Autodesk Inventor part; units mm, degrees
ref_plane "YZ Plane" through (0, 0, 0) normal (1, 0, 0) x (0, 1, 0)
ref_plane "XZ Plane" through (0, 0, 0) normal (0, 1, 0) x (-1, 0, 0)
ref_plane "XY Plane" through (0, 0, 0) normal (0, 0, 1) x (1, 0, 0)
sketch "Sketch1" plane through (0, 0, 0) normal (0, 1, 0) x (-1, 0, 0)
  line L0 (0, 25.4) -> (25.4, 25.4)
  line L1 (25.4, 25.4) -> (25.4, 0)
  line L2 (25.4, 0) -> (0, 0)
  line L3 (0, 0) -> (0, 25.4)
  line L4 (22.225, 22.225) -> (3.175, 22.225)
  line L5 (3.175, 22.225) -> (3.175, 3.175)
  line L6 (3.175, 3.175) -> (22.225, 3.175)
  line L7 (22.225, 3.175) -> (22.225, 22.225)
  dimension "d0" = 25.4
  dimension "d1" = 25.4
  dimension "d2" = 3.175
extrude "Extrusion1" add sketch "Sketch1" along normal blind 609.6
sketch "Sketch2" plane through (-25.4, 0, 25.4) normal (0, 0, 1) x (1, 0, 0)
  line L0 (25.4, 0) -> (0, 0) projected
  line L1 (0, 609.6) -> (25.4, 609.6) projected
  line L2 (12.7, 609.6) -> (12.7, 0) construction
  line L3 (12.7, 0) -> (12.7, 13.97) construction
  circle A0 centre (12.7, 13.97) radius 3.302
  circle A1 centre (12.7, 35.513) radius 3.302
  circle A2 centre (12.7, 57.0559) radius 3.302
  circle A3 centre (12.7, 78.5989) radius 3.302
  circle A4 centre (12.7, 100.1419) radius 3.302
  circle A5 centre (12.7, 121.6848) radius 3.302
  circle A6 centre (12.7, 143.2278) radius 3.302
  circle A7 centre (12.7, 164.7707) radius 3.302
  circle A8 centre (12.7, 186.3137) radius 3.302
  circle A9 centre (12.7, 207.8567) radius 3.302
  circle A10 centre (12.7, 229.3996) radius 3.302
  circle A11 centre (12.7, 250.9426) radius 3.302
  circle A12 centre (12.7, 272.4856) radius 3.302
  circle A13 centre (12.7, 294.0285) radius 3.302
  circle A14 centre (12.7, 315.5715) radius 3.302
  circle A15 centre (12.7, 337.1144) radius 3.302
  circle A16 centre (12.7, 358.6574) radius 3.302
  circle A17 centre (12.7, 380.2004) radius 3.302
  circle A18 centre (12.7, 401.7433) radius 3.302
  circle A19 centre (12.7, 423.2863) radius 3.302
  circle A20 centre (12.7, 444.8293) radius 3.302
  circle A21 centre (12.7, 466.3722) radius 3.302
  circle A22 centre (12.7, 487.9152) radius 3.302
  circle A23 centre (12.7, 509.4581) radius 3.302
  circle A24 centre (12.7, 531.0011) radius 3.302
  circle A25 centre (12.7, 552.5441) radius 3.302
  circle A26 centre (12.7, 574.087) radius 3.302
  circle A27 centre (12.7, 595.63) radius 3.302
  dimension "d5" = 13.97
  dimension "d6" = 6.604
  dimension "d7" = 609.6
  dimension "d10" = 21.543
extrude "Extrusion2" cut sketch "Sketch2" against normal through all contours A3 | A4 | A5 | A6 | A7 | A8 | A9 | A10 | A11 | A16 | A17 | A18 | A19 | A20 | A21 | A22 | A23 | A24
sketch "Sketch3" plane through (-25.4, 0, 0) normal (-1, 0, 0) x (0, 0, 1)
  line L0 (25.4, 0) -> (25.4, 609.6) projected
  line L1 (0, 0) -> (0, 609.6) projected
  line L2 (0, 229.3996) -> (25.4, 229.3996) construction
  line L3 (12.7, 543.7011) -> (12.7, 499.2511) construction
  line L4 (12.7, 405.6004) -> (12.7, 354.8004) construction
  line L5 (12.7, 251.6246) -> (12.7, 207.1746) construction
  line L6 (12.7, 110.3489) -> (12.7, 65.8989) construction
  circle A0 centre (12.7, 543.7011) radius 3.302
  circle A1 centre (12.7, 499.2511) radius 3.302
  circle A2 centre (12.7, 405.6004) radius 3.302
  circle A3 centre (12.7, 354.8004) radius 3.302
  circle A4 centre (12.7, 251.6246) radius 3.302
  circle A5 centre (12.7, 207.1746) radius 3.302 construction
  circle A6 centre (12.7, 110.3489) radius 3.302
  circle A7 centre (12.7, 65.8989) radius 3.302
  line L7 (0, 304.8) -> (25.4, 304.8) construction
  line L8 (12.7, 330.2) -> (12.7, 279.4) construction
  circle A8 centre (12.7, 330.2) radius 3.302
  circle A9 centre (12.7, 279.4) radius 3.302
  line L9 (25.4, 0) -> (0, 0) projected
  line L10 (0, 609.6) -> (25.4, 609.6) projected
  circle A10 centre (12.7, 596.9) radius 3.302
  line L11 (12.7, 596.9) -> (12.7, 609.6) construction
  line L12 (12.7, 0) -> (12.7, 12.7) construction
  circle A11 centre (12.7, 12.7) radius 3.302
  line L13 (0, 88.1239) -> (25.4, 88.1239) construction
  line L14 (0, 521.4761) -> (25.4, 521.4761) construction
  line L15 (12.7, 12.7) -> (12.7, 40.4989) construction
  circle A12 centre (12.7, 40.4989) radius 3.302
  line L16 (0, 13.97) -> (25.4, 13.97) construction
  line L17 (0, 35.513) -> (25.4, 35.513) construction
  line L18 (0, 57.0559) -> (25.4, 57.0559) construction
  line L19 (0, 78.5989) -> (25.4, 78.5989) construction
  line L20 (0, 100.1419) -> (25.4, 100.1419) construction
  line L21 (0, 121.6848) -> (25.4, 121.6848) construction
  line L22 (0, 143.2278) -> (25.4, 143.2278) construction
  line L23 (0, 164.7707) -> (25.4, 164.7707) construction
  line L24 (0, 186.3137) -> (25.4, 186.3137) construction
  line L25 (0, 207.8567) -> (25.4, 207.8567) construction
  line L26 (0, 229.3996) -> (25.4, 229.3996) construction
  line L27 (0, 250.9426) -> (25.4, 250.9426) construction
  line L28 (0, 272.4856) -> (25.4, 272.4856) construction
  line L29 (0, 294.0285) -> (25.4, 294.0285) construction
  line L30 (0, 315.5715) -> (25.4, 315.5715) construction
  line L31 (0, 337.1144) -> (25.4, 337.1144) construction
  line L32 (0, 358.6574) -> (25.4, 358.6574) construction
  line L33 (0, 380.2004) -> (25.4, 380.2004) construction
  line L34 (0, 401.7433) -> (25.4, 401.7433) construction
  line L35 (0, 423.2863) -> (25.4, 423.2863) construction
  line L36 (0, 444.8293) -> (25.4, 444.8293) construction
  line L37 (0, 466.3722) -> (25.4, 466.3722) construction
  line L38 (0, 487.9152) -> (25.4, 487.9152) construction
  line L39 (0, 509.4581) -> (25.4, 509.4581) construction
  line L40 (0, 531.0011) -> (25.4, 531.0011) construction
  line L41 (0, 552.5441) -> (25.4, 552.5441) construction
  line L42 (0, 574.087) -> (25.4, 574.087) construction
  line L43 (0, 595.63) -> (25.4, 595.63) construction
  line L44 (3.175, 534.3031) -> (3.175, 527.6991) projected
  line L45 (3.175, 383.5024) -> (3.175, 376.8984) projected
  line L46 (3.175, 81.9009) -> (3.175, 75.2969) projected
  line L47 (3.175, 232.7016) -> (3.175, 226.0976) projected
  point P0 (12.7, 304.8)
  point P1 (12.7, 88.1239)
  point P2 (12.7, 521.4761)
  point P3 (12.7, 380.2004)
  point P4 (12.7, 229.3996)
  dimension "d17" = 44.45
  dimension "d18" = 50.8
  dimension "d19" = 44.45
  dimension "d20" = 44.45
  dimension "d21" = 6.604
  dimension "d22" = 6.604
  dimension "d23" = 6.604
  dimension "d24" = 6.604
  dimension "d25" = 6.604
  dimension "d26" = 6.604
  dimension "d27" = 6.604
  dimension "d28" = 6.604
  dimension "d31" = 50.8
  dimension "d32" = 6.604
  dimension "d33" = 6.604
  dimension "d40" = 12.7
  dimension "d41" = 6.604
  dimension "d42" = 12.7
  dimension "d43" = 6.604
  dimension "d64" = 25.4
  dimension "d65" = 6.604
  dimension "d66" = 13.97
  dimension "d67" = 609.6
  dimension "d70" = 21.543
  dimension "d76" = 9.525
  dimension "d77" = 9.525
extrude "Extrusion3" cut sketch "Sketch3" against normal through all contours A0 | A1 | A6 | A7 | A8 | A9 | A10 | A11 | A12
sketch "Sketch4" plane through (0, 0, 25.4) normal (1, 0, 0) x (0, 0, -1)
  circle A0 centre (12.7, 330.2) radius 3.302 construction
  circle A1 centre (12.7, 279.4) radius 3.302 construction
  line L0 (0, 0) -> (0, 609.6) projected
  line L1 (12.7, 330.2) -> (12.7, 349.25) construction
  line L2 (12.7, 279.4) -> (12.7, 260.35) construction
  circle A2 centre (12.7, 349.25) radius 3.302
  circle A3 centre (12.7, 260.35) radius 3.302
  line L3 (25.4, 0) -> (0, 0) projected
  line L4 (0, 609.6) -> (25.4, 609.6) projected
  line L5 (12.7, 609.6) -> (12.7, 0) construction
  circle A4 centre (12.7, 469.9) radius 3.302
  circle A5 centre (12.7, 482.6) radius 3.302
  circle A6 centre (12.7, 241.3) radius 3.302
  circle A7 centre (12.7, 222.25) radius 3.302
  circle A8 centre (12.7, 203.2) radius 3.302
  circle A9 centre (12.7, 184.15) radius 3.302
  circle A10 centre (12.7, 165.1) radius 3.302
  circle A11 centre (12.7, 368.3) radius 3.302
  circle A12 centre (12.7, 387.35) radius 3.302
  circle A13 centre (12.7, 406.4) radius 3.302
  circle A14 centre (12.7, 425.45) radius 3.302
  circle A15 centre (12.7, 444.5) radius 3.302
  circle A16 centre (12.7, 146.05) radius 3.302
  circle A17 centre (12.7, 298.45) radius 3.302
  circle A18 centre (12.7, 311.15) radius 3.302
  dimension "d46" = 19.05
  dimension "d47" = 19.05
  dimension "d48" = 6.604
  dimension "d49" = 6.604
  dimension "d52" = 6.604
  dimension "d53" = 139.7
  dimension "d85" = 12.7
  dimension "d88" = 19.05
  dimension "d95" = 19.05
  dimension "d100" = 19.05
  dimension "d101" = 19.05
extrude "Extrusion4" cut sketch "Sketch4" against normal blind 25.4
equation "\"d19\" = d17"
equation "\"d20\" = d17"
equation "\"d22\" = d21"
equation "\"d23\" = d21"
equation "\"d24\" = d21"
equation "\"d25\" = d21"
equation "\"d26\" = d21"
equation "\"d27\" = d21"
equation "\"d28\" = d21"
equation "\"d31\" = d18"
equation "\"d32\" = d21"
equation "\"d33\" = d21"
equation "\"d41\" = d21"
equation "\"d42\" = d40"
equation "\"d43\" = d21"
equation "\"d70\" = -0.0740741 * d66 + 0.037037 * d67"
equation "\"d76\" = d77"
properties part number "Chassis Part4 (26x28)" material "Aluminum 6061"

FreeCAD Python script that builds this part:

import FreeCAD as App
import Part
import Sketcher
Q = App.Units.Quantity


def add_polygon(sketch, points):
    """Adds a closed chain of lines whose ends are joined by coincident constraints."""
    first, n = sketch.GeometryCount, len(points)
    for a, b in zip(points, points[1:] + points[:1]):
        sketch.addGeometry(Part.LineSegment(App.Vector(*a, 0), App.Vector(*b, 0)), False)
    for i in range(n):
        sketch.addConstraint(Sketcher.Constraint("Coincident", first + i, 2, first + (i + 1) % n, 1))

doc = App.newDocument("Part")
body = doc.addObject("PartDesign::Body", "Body")

# Sketch on XZ plane
sketch1 = body.newObject("Sketcher::SketchObject", "Sketch")
sketch1.AttachmentSupport = (doc.getObject("XZ_Plane"), [""])
sketch1.MapMode = "FlatFace"
add_polygon(sketch1, [(-25, 25), (0, 25), (0, 0), (-25, 0)])  # lines 0-3
add_polygon(sketch1, [(-3, 22), (-22, 22), (-22, 3), (-3, 3)])  # lines 4-7
sketch1.addConstraint([
    Sketcher.Constraint("Horizontal", 0),
    Sketcher.Constraint("Vertical", 1),
    Sketcher.Constraint("Horizontal", 2),
    Sketcher.Constraint("Vertical", 3),
    Sketcher.Constraint("Horizontal", 4),
    Sketcher.Constraint("Vertical", 5),
    Sketcher.Constraint("Horizontal", 6),
    Sketcher.Constraint("Vertical", 7),
    Sketcher.Constraint("Coincident", 1, 2, -1, 1),
    Sketcher.Constraint("Equal", 2, 1),
    Sketcher.Constraint("Equal", 6, 5),
    Sketcher.Constraint("DistanceX", 0, 1, 0, 2, Q("1 in")),
    Sketcher.Constraint("DistanceY", -1, 1, 5, 2, Q("0.125 in")),
    Sketcher.Constraint("DistanceX", 6, 2, -1, 1, Q("0.125 in")),
    Sketcher.Constraint("DistanceX", 3, 2, 4, 2, Q("0.125 in")),
])
pad1 = body.newObject("PartDesign::Pad", "Pad")
pad1.Profile = sketch1
pad1.Length = Q("24 in")
pad1.Reversed = True

# Sketch on XY plane
sketch2 = body.newObject("Sketcher::SketchObject", "Sketch001")
sketch2.AttachmentSupport = (doc.getObject("XY_Plane"), [""])
sketch2.MapMode = "FlatFace"
sketch2.AttachmentOffset = App.Placement(App.Vector(0, 0, 1 * 25.4), App.Rotation())
sketch2.addGeometry([
    Part.Circle(App.Vector(-12.7, 78.6, 0), App.Vector(0, 0, 1), 3.3),  # 0
    Part.Circle(App.Vector(-12.7, 100.1, 0), App.Vector(0, 0, 1), 3.3),  # 1
    Part.Circle(App.Vector(-12.7, 121.7, 0), App.Vector(0, 0, 1), 3.3),  # 2
    Part.Circle(App.Vector(-12.7, 143.2, 0), App.Vector(0, 0, 1), 3.3),  # 3
    Part.Circle(App.Vector(-12.7, 164.8, 0), App.Vector(0, 0, 1), 3.3),  # 4
    Part.Circle(App.Vector(-12.7, 186.3, 0), App.Vector(0, 0, 1), 3.3),  # 5
    Part.Circle(App.Vector(-12.7, 207.9, 0), App.Vector(0, 0, 1), 3.3),  # 6
    Part.Circle(App.Vector(-12.7, 229.4, 0), App.Vector(0, 0, 1), 3.3),  # 7
    Part.Circle(App.Vector(-12.7, 250.9, 0), App.Vector(0, 0, 1), 3.3),  # 8
    Part.Circle(App.Vector(-12.7, 358.7, 0), App.Vector(0, 0, 1), 3.3),  # 9
    Part.Circle(App.Vector(-12.7, 380.2, 0), App.Vector(0, 0, 1), 3.3),  # 10
    Part.Circle(App.Vector(-12.7, 401.7, 0), App.Vector(0, 0, 1), 3.3),  # 11
    Part.Circle(App.Vector(-12.7, 423.3, 0), App.Vector(0, 0, 1), 3.3),  # 12
    Part.Circle(App.Vector(-12.7, 444.8, 0), App.Vector(0, 0, 1), 3.3),  # 13
    Part.Circle(App.Vector(-12.7, 466.4, 0), App.Vector(0, 0, 1), 3.3),  # 14
    Part.Circle(App.Vector(-12.7, 487.9, 0), App.Vector(0, 0, 1), 3.3),  # 15
    Part.Circle(App.Vector(-12.7, 509.5, 0), App.Vector(0, 0, 1), 3.3),  # 16
    Part.Circle(App.Vector(-12.7, 531, 0), App.Vector(0, 0, 1), 3.3),  # 17
], False)
sketch2.addConstraint([
    Sketcher.Constraint("Equal", 0, 1),
    Sketcher.Constraint("Equal", 1, 2),
    Sketcher.Constraint("Equal", 2, 3),
    Sketcher.Constraint("Equal", 3, 4),
    Sketcher.Constraint("Equal", 4, 5),
    Sketcher.Constraint("Equal", 5, 6),
    Sketcher.Constraint("Equal", 6, 7),
    Sketcher.Constraint("Equal", 7, 8),
    Sketcher.Constraint("Equal", 8, 9),
    Sketcher.Constraint("Equal", 9, 10),
    Sketcher.Constraint("Equal", 10, 11),
    Sketcher.Constraint("Equal", 11, 12),
    Sketcher.Constraint("Equal", 12, 13),
    Sketcher.Constraint("Equal", 13, 14),
    Sketcher.Constraint("Equal", 14, 15),
    Sketcher.Constraint("Equal", 15, 16),
    Sketcher.Constraint("Equal", 16, 17),
    Sketcher.Constraint("Vertical", 0, 3, 1, 3),
    Sketcher.Constraint("Vertical", 1, 3, 2, 3),
    Sketcher.Constraint("Vertical", 2, 3, 3, 3),
    Sketcher.Constraint("Vertical", 3, 3, 4, 3),
    Sketcher.Constraint("Vertical", 4, 3, 5, 3),
    Sketcher.Constraint("Vertical", 5, 3, 6, 3),
    Sketcher.Constraint("Vertical", 6, 3, 7, 3),
    Sketcher.Constraint("Vertical", 7, 3, 8, 3),
    Sketcher.Constraint("Vertical", 8, 3, 9, 3),
    Sketcher.Constraint("Vertical", 9, 3, 10, 3),
    Sketcher.Constraint("Vertical", 10, 3, 11, 3),
    Sketcher.Constraint("Vertical", 11, 3, 12, 3),
    Sketcher.Constraint("Vertical", 12, 3, 13, 3),
    Sketcher.Constraint("Vertical", 13, 3, 14, 3),
    Sketcher.Constraint("Vertical", 14, 3, 15, 3),
    Sketcher.Constraint("Vertical", 15, 3, 16, 3),
    Sketcher.Constraint("Vertical", 16, 3, 17, 3),
    Sketcher.Constraint("Diameter", 0, Q("0.26 in")),
    Sketcher.Constraint("DistanceX", 0, 3, -1, 1, Q("0.5 in")),
    Sketcher.Constraint("DistanceY", 0, 3, 1, 3, 21.543),
    Sketcher.Constraint("DistanceY", 1, 3, 2, 3, 21.543),
    Sketcher.Constraint("DistanceY", 2, 3, 3, 3, 21.543),
    Sketcher.Constraint("DistanceY", 3, 3, 4, 3, 21.543),
    Sketcher.Constraint("DistanceY", 4, 3, 5, 3, 21.543),
    Sketcher.Constraint("DistanceY", 5, 3, 6, 3, 21.543),
    Sketcher.Constraint("DistanceY", 6, 3, 7, 3, 21.543),
    Sketcher.Constraint("DistanceY", 7, 3, 8, 3, 21.543),
    Sketcher.Constraint("DistanceY", 9, 3, 10, 3, 21.543),
    Sketcher.Constraint("DistanceY", 10, 3, 11, 3, 21.543),
    Sketcher.Constraint("DistanceY", 11, 3, 12, 3, 21.543),
    Sketcher.Constraint("DistanceY", 12, 3, 13, 3, 21.543),
    Sketcher.Constraint("DistanceY", 13, 3, 14, 3, 21.543),
    Sketcher.Constraint("DistanceY", 14, 3, 15, 3, 21.543),
    Sketcher.Constraint("DistanceY", 15, 3, 16, 3, 21.543),
    Sketcher.Constraint("DistanceY", 16, 3, 17, 3, 21.543),
    Sketcher.Constraint("DistanceY", -1, 1, 1, 3, Q("3.9426 in")),
    Sketcher.Constraint("DistanceY", -1, 1, 14, 3, Q("18.3611 in")),
])
pocket1 = body.newObject("PartDesign::Pocket", "Pocket")
pocket1.Profile = sketch2
pocket1.Type = "ThroughAll"

# Sketch on YZ plane
sketch3 = body.newObject("Sketcher::SketchObject", "Sketch002")
sketch3.AttachmentSupport = (doc.getObject("YZ_Plane"), [""])
sketch3.MapMode = "FlatFace"
sketch3.AttachmentOffset = App.Placement(App.Vector(0, 0, -1 * 25.4), App.Rotation())
sketch3.addGeometry([
    Part.Circle(App.Vector(543.7, 12.7, 0), App.Vector(0, 0, 1), 3.3),  # 0
    Part.Circle(App.Vector(499.3, 12.7, 0), App.Vector(0, 0, 1), 3.3),  # 1
    Part.Circle(App.Vector(110.3, 12.7, 0), App.Vector(0, 0, 1), 3.3),  # 2
    Part.Circle(App.Vector(65.9, 12.7, 0), App.Vector(0, 0, 1), 3.3),  # 3
    Part.Circle(App.Vector(330.2, 12.7, 0), App.Vector(0, 0, 1), 3.3),  # 4
    Part.Circle(App.Vector(279.4, 12.7, 0), App.Vector(0, 0, 1), 3.3),  # 5
    Part.Circle(App.Vector(596.9, 12.7, 0), App.Vector(0, 0, 1), 3.3),  # 6
    Part.Circle(App.Vector(12.7, 12.7, 0), App.Vector(0, 0, 1), 3.3),  # 7
    Part.Circle(App.Vector(40.5, 12.7, 0), App.Vector(0, 0, 1), 3.3),  # 8
], False)
sketch3.addConstraint([
    Sketcher.Constraint("Equal", 0, 1),
    Sketcher.Constraint("Equal", 1, 2),
    Sketcher.Constraint("Equal", 2, 3),
    Sketcher.Constraint("Equal", 3, 4),
    Sketcher.Constraint("Equal", 4, 5),
    Sketcher.Constraint("Equal", 5, 6),
    Sketcher.Constraint("Equal", 6, 7),
    Sketcher.Constraint("Equal", 7, 8),
    Sketcher.Constraint("Horizontal", 0, 3, 1, 3),
    Sketcher.Constraint("Horizontal", 1, 3, 2, 3),
    Sketcher.Constraint("Horizontal", 2, 3, 3, 3),
    Sketcher.Constraint("Horizontal", 3, 3, 4, 3),
    Sketcher.Constraint("Horizontal", 4, 3, 5, 3),
    Sketcher.Constraint("Horizontal", 5, 3, 6, 3),
    Sketcher.Constraint("Horizontal", 6, 3, 7, 3),
    Sketcher.Constraint("Horizontal", 7, 3, 8, 3),
    Sketcher.Constraint("Diameter", 0, Q("0.26 in")),
    Sketcher.Constraint("DistanceX", 5, 3, 4, 3, Q("2 in")),
    Sketcher.Constraint("DistanceX", 8, 3, 3, 3, Q("1 in")),
    Sketcher.Constraint("DistanceY", -1, 1, 0, 3, Q("0.5 in")),
    Sketcher.Constraint("DistanceX", -1, 1, 7, 3, Q("0.5 in")),
    Sketcher.Constraint("DistanceX", 1, 3, 0, 3, Q("1.75 in")),
    Sketcher.Constraint("DistanceX", 3, 3, 2, 3, Q("1.75 in")),
    Sketcher.Constraint("DistanceX", -1, 1, 4, 3, Q("13 in")),
    Sketcher.Constraint("DistanceX", -1, 1, 6, 3, Q("23.5 in")),
    Sketcher.Constraint("DistanceX", 2, 3, 1, 3, Q("15.3111 in")),
    Sketcher.Constraint("DistanceX", -1, 1, 0, 3, 543.701),
])
pocket2 = body.newObject("PartDesign::Pocket", "Pocket001")
pocket2.Profile = sketch3
pocket2.Type = "ThroughAll"
pocket2.Reversed = True

# Sketch on YZ plane
sketch4 = body.newObject("Sketcher::SketchObject", "Sketch003")
sketch4.AttachmentSupport = (doc.getObject("YZ_Plane"), [""])
sketch4.MapMode = "FlatFace"
sketch4.addGeometry([
    Part.Circle(App.Vector(349.2, 12.7, 0), App.Vector(0, 0, 1), 3.3),  # 0
    Part.Circle(App.Vector(260.4, 12.7, 0), App.Vector(0, 0, 1), 3.3),  # 1
    Part.Circle(App.Vector(469.9, 12.7, 0), App.Vector(0, 0, 1), 3.3),  # 2
    Part.Circle(App.Vector(482.6, 12.7, 0), App.Vector(0, 0, 1), 3.3),  # 3
    Part.Circle(App.Vector(241.3, 12.7, 0), App.Vector(0, 0, 1), 3.3),  # 4
    Part.Circle(App.Vector(222.2, 12.7, 0), App.Vector(0, 0, 1), 3.3),  # 5
    Part.Circle(App.Vector(203.2, 12.7, 0), App.Vector(0, 0, 1), 3.3),  # 6
    Part.Circle(App.Vector(184.2, 12.7, 0), App.Vector(0, 0, 1), 3.3),  # 7
    Part.Circle(App.Vector(165.1, 12.7, 0), App.Vector(0, 0, 1), 3.3),  # 8
    Part.Circle(App.Vector(368.3, 12.7, 0), App.Vector(0, 0, 1), 3.3),  # 9
    Part.Circle(App.Vector(387.4, 12.7, 0), App.Vector(0, 0, 1), 3.3),  # 10
    Part.Circle(App.Vector(406.4, 12.7, 0), App.Vector(0, 0, 1), 3.3),  # 11
    Part.Circle(App.Vector(425.4, 12.7, 0), App.Vector(0, 0, 1), 3.3),  # 12
    Part.Circle(App.Vector(444.5, 12.7, 0), App.Vector(0, 0, 1), 3.3),  # 13
    Part.Circle(App.Vector(146.1, 12.7, 0), App.Vector(0, 0, 1), 3.3),  # 14
    Part.Circle(App.Vector(298.4, 12.7, 0), App.Vector(0, 0, 1), 3.3),  # 15
    Part.Circle(App.Vector(311.1, 12.7, 0), App.Vector(0, 0, 1), 3.3),  # 16
], False)
sketch4.addConstraint([
    Sketcher.Constraint("Equal", 0, 1),
    Sketcher.Constraint("Equal", 1, 2),
    Sketcher.Constraint("Equal", 2, 3),
    Sketcher.Constraint("Equal", 3, 4),
    Sketcher.Constraint("Equal", 4, 5),
    Sketcher.Constraint("Equal", 5, 6),
    Sketcher.Constraint("Equal", 6, 7),
    Sketcher.Constraint("Equal", 7, 8),
    Sketcher.Constraint("Equal", 8, 9),
    Sketcher.Constraint("Equal", 9, 10),
    Sketcher.Constraint("Equal", 10, 11),
    Sketcher.Constraint("Equal", 11, 12),
    Sketcher.Constraint("Equal", 12, 13),
    Sketcher.Constraint("Equal", 13, 14),
    Sketcher.Constraint("Equal", 14, 15),
    Sketcher.Constraint("Equal", 15, 16),
    Sketcher.Constraint("Horizontal", 0, 3, 1, 3),
    Sketcher.Constraint("Horizontal", 1, 3, 2, 3),
    Sketcher.Constraint("Horizontal", 2, 3, 3, 3),
    Sketcher.Constraint("Horizontal", 3, 3, 4, 3),
    Sketcher.Constraint("Horizontal", 4, 3, 5, 3),
    Sketcher.Constraint("Horizontal", 5, 3, 6, 3),
    Sketcher.Constraint("Horizontal", 6, 3, 7, 3),
    Sketcher.Constraint("Horizontal", 7, 3, 8, 3),
    Sketcher.Constraint("Horizontal", 8, 3, 9, 3),
    Sketcher.Constraint("Horizontal", 9, 3, 10, 3),
    Sketcher.Constraint("Horizontal", 10, 3, 11, 3),
    Sketcher.Constraint("Horizontal", 11, 3, 12, 3),
    Sketcher.Constraint("Horizontal", 12, 3, 13, 3),
    Sketcher.Constraint("Horizontal", 13, 3, 14, 3),
    Sketcher.Constraint("Horizontal", 14, 3, 15, 3),
    Sketcher.Constraint("Horizontal", 15, 3, 16, 3),
    Sketcher.Constraint("Diameter", 0, Q("0.26 in")),
    Sketcher.Constraint("DistanceX", 13, 3, 2, 3, Q("1 in")),
    Sketcher.Constraint("DistanceY", -1, 1, 0, 3, Q("0.5 in")),
    Sketcher.Constraint("DistanceX", 2, 3, 3, 3, Q("0.5 in")),
    Sketcher.Constraint("DistanceX", 15, 3, 16, 3, Q("0.5 in")),
    Sketcher.Constraint("DistanceX", 4, 3, 1, 3, Q("0.75 in")),
    Sketcher.Constraint("DistanceX", 5, 3, 4, 3, Q("0.75 in")),
    Sketcher.Constraint("DistanceX", 6, 3, 5, 3, Q("0.75 in")),
    Sketcher.Constraint("DistanceX", 7, 3, 6, 3, Q("0.75 in")),
    Sketcher.Constraint("DistanceX", 8, 3, 7, 3, Q("0.75 in")),
    Sketcher.Constraint("DistanceX", 0, 3, 9, 3, Q("0.75 in")),
    Sketcher.Constraint("DistanceX", 9, 3, 10, 3, Q("0.75 in")),
    Sketcher.Constraint("DistanceX", 10, 3, 11, 3, Q("0.75 in")),
    Sketcher.Constraint("DistanceX", 11, 3, 12, 3, Q("0.75 in")),
    Sketcher.Constraint("DistanceX", 12, 3, 13, 3, Q("0.75 in")),
    Sketcher.Constraint("DistanceX", 14, 3, 8, 3, Q("0.75 in")),
    Sketcher.Constraint("DistanceX", -1, 1, 3, 3, Q("19 in")),
    Sketcher.Constraint("DistanceX", -1, 1, 6, 3, Q("8 in")),
    Sketcher.Constraint("DistanceX", 15, 3, 0, 3, Q("2 in")),
])
pocket3 = body.newObject("PartDesign::Pocket", "Pocket002")
pocket3.Profile = sketch4
pocket3.Length = Q("1 in")

doc.recompute()
